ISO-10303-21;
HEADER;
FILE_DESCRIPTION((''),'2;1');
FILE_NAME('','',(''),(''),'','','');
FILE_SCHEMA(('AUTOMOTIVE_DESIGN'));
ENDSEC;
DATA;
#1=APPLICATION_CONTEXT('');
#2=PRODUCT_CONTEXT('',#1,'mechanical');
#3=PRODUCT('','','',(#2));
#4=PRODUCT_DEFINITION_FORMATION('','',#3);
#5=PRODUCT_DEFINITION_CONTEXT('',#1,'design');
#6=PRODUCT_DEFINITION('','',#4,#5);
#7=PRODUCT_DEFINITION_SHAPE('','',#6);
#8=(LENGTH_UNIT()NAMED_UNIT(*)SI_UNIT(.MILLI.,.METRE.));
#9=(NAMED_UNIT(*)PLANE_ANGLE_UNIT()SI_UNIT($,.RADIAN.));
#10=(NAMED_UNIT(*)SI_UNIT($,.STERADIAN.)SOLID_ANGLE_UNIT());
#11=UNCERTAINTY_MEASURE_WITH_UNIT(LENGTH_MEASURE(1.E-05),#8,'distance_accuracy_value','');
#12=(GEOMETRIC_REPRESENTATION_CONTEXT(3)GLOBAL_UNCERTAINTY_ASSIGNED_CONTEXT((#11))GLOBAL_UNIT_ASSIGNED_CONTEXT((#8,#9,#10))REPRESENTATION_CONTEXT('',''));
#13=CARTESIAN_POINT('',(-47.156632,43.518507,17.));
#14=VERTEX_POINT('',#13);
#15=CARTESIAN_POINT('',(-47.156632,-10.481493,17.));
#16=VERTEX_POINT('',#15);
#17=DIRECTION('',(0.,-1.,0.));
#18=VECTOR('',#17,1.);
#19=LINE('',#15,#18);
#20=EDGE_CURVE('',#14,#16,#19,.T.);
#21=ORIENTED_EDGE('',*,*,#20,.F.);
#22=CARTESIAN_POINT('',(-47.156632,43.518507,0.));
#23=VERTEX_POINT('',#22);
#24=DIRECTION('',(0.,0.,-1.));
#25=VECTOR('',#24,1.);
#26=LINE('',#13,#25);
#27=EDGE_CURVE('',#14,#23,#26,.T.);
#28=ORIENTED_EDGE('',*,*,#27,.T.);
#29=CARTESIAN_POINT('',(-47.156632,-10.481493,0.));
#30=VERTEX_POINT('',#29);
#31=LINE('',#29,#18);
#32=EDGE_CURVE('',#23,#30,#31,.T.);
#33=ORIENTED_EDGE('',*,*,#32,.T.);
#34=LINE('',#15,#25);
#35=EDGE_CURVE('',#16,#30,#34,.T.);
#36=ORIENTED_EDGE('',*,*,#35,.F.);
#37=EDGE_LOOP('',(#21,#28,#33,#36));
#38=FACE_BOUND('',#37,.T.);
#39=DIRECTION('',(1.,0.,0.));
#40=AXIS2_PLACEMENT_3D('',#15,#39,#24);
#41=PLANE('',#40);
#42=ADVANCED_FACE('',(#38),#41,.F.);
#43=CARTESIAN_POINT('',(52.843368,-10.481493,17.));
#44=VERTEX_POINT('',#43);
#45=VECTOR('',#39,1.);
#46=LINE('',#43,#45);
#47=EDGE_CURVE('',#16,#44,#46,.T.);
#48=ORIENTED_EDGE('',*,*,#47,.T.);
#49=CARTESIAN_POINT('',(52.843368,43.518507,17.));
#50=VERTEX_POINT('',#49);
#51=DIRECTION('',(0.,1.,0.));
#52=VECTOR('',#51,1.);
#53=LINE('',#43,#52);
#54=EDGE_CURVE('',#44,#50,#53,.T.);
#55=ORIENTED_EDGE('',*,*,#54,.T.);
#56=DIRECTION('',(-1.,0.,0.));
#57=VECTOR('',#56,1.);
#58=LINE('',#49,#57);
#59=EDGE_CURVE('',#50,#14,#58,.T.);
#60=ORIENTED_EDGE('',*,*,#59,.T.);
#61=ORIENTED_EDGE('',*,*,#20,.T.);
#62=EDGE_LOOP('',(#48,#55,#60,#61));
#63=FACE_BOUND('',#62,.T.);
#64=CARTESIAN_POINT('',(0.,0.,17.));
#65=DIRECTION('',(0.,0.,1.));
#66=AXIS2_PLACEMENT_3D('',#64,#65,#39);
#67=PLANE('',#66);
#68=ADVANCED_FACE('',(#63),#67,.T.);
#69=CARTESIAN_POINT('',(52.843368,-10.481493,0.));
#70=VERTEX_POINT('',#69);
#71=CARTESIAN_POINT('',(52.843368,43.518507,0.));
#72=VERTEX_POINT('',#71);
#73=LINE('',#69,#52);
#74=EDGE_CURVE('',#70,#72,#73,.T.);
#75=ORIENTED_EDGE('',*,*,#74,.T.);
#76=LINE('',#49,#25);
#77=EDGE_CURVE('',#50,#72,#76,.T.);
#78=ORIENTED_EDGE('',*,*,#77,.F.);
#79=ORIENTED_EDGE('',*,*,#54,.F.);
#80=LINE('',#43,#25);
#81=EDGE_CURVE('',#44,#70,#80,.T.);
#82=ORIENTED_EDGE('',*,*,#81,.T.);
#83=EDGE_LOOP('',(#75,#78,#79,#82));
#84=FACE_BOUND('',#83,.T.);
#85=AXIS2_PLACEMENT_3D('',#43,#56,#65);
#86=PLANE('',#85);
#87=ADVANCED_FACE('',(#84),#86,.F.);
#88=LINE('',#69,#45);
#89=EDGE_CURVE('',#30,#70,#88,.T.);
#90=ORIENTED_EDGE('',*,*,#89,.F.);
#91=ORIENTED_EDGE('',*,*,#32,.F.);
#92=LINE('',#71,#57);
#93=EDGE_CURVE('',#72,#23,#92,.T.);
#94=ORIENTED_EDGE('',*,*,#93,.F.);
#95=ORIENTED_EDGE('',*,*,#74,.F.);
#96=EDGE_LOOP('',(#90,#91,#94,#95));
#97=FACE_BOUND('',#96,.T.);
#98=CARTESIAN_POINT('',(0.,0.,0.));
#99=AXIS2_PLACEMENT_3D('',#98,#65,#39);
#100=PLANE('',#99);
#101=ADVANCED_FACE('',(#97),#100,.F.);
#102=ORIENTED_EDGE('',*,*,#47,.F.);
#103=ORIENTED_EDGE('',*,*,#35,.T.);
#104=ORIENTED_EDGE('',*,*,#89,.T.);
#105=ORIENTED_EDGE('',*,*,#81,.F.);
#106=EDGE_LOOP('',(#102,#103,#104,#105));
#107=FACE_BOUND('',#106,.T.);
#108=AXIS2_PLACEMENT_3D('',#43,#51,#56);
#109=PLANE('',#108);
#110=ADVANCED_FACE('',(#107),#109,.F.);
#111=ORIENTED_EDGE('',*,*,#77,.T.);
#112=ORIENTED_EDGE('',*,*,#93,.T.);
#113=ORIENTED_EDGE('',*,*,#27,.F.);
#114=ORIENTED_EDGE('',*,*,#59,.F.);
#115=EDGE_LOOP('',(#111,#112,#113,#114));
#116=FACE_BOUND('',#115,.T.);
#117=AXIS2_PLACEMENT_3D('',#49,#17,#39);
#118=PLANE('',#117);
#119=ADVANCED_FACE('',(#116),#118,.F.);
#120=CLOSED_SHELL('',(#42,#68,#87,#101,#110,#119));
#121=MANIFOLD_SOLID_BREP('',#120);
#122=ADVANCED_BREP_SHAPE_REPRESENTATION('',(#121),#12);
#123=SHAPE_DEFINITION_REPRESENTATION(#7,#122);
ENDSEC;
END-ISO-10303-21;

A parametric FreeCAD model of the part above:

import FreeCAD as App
import Part
import Sketcher
Q = App.Units.Quantity


def add_polygon(sketch, points):
    """Adds a closed chain of lines whose ends are joined by coincident constraints."""
    first, n = sketch.GeometryCount, len(points)
    for a, b in zip(points, points[1:] + points[:1]):
        sketch.addGeometry(Part.LineSegment(App.Vector(*a, 0), App.Vector(*b, 0)), False)
    for i in range(n):
        sketch.addConstraint(Sketcher.Constraint("Coincident", first + i, 2, first + (i + 1) % n, 1))

doc = App.newDocument("Part")
body = doc.addObject("PartDesign::Body", "Body")

# Sketch on XY plane
sketch1 = body.newObject("Sketcher::SketchObject", "Sketch")
sketch1.AttachmentSupport = (doc.getObject("XY_Plane"), [""])
sketch1.MapMode = "FlatFace"
add_polygon(sketch1, [(-47, 44), (-47, -10), (53, -10), (53, 44)])  # lines 0-3
sketch1.addConstraint([
    Sketcher.Constraint("Vertical", 0),
    Sketcher.Constraint("Horizontal", 1),
    Sketcher.Constraint("Vertical", 2),
    Sketcher.Constraint("Horizontal", 3),
    Sketcher.Constraint("DistanceX", 1, 1, 1, 2, Q("100 mm")),
    Sketcher.Constraint("DistanceY", 0, 2, 0, 1, Q("54 mm")),
    Sketcher.Constraint("DistanceX", 0, 2, -1, 1, Q("47.156632 mm")),
    Sketcher.Constraint("DistanceY", 0, 2, -1, 1, Q("10.481493 mm")),
])
pad1 = body.newObject("PartDesign::Pad", "Pad")
pad1.Profile = sketch1
pad1.Length = 17

doc.recompute()
